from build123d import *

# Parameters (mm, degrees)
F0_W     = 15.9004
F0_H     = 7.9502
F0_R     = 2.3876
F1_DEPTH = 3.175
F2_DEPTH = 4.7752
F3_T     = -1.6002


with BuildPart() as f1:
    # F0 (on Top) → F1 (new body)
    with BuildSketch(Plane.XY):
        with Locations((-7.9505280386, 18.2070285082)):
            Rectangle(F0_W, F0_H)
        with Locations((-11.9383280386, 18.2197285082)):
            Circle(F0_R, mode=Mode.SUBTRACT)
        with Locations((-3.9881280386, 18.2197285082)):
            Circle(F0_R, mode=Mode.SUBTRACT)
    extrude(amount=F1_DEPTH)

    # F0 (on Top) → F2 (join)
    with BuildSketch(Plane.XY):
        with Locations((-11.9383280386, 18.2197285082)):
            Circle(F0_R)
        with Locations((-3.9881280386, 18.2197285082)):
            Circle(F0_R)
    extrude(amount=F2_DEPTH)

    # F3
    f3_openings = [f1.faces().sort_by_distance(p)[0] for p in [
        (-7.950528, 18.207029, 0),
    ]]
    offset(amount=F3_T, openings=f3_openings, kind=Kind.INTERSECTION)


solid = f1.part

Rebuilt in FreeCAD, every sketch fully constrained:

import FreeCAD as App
import Part
import Sketcher
Q = App.Units.Quantity


def faces_at(feature, points):
    """Names of the faces that lie closest to the given points."""
    faces = feature.Shape.Faces
    near = lambda p: min(range(len(faces)), key=lambda i: faces[i].distToShape(Part.Vertex(*p))[0])
    return sorted({f"Face{near(p) + 1}" for p in points})

doc = App.newDocument("Part")
body = doc.addObject("PartDesign::Body", "Body")

# Sketch on XY plane
sketch1 = body.newObject("Sketcher::SketchObject", "Sketch")
sketch1.AttachmentSupport = (doc.getObject("XY_Plane"), [""])
sketch1.MapMode = "FlatFace"
sketch1.addGeometry(Part.LineSegment(App.Vector(-15.9, 22.2, 0), App.Vector(-15.9, 14.2, 0)), False)
sketch1.addGeometry(Part.LineSegment(App.Vector(-15.9, 14.2, 0), App.Vector(0, 14.2, 0)), False)
sketch1.addGeometry(Part.LineSegment(App.Vector(0, 14.2, 0), App.Vector(0, 22.2, 0)), False)
sketch1.addGeometry(Part.LineSegment(App.Vector(0, 22.2, 0), App.Vector(-15.9, 22.2, 0)), False)
sketch1.addGeometry(Part.Circle(App.Vector(-11.9, 18.2, 0), App.Vector(0, 0, 1), 2.4), False)
sketch1.addGeometry(Part.Circle(App.Vector(-4, 18.2, 0), App.Vector(0, 0, 1), 2.4), False)
sketch1.addConstraint(Sketcher.Constraint("Coincident", 0, 2, 1, 1))
sketch1.addConstraint(Sketcher.Constraint("Coincident", 1, 2, 2, 1))
sketch1.addConstraint(Sketcher.Constraint("Coincident", 2, 2, 3, 1))
sketch1.addConstraint(Sketcher.Constraint("Coincident", 3, 2, 0, 1))
sketch1.addConstraint(Sketcher.Constraint("Vertical", 0))
sketch1.addConstraint(Sketcher.Constraint("Horizontal", 1))
sketch1.addConstraint(Sketcher.Constraint("Vertical", 2))
sketch1.addConstraint(Sketcher.Constraint("Horizontal", 3))
sketch1.addConstraint(Sketcher.Constraint("Equal", 4, 5))
sketch1.addConstraint(Sketcher.Constraint("Horizontal", 4, 3, 5, 3))
sketch1.addConstraint(Sketcher.Constraint("Diameter", 4, Q("0.188 in")))
sketch1.addConstraint(Sketcher.Constraint("DistanceX", 1, 1, 1, 2, Q("0.626 in")))
sketch1.addConstraint(Sketcher.Constraint("DistanceY", 0, 2, 0, 1, Q("0.313 in")))
sketch1.addConstraint(Sketcher.Constraint("DistanceX", 4, 3, 1, 2, Q("0.47 in")))
sketch1.addConstraint(Sketcher.Constraint("DistanceX", 4, 3, 5, 3, Q("0.313 in")))
sketch1.addConstraint(Sketcher.Constraint("DistanceY", 0, 2, 4, 3, Q("0.157 in")))
sketch1.addConstraint(Sketcher.Constraint("DistanceX", 4, 3, -1, 1, Q("11.938328 mm")))
sketch1.addConstraint(Sketcher.Constraint("DistanceY", -1, 1, 4, 3, Q("18.219729 mm")))
pad1 = body.newObject("PartDesign::Pad", "Pad")
pad1.Profile = sketch1
pad1.Length = Q("0.125 in")

# Sketch on XY plane
sketch2 = body.newObject("Sketcher::SketchObject", "Sketch001")
sketch2.AttachmentSupport = (doc.getObject("XY_Plane"), [""])
sketch2.MapMode = "FlatFace"
sketch2.addGeometry(Part.Circle(App.Vector(-11.9, 18.2, 0), App.Vector(0, 0, 1), 2.4), False)
sketch2.addGeometry(Part.Circle(App.Vector(-4, 18.2, 0), App.Vector(0, 0, 1), 2.4), False)
sketch2.addConstraint(Sketcher.Constraint("Equal", 0, 1))
sketch2.addConstraint(Sketcher.Constraint("Horizontal", 0, 3, 1, 3))
sketch2.addConstraint(Sketcher.Constraint("Diameter", 0, Q("0.188 in")))
sketch2.addConstraint(Sketcher.Constraint("DistanceX", 0, 3, 1, 3, Q("0.313 in")))
sketch2.addConstraint(Sketcher.Constraint("DistanceX", 0, 3, -1, 1, Q("11.938328 mm")))
sketch2.addConstraint(Sketcher.Constraint("DistanceY", -1, 1, 0, 3, Q("18.219729 mm")))
pad2 = body.newObject("PartDesign::Pad", "Pad001")
pad2.Profile = sketch2
pad2.Length = Q("0.188 in")
doc.recompute()

thickness = body.newObject("PartDesign::Thickness", "Thickness")
thickness.Base = (pad2, faces_at(pad2, [(-7.951, 18.207, 0)]))
thickness.Value = Q("0.063 in")
thickness.Reversed = True
thickness.Join = "Intersection"

doc.recompute()
